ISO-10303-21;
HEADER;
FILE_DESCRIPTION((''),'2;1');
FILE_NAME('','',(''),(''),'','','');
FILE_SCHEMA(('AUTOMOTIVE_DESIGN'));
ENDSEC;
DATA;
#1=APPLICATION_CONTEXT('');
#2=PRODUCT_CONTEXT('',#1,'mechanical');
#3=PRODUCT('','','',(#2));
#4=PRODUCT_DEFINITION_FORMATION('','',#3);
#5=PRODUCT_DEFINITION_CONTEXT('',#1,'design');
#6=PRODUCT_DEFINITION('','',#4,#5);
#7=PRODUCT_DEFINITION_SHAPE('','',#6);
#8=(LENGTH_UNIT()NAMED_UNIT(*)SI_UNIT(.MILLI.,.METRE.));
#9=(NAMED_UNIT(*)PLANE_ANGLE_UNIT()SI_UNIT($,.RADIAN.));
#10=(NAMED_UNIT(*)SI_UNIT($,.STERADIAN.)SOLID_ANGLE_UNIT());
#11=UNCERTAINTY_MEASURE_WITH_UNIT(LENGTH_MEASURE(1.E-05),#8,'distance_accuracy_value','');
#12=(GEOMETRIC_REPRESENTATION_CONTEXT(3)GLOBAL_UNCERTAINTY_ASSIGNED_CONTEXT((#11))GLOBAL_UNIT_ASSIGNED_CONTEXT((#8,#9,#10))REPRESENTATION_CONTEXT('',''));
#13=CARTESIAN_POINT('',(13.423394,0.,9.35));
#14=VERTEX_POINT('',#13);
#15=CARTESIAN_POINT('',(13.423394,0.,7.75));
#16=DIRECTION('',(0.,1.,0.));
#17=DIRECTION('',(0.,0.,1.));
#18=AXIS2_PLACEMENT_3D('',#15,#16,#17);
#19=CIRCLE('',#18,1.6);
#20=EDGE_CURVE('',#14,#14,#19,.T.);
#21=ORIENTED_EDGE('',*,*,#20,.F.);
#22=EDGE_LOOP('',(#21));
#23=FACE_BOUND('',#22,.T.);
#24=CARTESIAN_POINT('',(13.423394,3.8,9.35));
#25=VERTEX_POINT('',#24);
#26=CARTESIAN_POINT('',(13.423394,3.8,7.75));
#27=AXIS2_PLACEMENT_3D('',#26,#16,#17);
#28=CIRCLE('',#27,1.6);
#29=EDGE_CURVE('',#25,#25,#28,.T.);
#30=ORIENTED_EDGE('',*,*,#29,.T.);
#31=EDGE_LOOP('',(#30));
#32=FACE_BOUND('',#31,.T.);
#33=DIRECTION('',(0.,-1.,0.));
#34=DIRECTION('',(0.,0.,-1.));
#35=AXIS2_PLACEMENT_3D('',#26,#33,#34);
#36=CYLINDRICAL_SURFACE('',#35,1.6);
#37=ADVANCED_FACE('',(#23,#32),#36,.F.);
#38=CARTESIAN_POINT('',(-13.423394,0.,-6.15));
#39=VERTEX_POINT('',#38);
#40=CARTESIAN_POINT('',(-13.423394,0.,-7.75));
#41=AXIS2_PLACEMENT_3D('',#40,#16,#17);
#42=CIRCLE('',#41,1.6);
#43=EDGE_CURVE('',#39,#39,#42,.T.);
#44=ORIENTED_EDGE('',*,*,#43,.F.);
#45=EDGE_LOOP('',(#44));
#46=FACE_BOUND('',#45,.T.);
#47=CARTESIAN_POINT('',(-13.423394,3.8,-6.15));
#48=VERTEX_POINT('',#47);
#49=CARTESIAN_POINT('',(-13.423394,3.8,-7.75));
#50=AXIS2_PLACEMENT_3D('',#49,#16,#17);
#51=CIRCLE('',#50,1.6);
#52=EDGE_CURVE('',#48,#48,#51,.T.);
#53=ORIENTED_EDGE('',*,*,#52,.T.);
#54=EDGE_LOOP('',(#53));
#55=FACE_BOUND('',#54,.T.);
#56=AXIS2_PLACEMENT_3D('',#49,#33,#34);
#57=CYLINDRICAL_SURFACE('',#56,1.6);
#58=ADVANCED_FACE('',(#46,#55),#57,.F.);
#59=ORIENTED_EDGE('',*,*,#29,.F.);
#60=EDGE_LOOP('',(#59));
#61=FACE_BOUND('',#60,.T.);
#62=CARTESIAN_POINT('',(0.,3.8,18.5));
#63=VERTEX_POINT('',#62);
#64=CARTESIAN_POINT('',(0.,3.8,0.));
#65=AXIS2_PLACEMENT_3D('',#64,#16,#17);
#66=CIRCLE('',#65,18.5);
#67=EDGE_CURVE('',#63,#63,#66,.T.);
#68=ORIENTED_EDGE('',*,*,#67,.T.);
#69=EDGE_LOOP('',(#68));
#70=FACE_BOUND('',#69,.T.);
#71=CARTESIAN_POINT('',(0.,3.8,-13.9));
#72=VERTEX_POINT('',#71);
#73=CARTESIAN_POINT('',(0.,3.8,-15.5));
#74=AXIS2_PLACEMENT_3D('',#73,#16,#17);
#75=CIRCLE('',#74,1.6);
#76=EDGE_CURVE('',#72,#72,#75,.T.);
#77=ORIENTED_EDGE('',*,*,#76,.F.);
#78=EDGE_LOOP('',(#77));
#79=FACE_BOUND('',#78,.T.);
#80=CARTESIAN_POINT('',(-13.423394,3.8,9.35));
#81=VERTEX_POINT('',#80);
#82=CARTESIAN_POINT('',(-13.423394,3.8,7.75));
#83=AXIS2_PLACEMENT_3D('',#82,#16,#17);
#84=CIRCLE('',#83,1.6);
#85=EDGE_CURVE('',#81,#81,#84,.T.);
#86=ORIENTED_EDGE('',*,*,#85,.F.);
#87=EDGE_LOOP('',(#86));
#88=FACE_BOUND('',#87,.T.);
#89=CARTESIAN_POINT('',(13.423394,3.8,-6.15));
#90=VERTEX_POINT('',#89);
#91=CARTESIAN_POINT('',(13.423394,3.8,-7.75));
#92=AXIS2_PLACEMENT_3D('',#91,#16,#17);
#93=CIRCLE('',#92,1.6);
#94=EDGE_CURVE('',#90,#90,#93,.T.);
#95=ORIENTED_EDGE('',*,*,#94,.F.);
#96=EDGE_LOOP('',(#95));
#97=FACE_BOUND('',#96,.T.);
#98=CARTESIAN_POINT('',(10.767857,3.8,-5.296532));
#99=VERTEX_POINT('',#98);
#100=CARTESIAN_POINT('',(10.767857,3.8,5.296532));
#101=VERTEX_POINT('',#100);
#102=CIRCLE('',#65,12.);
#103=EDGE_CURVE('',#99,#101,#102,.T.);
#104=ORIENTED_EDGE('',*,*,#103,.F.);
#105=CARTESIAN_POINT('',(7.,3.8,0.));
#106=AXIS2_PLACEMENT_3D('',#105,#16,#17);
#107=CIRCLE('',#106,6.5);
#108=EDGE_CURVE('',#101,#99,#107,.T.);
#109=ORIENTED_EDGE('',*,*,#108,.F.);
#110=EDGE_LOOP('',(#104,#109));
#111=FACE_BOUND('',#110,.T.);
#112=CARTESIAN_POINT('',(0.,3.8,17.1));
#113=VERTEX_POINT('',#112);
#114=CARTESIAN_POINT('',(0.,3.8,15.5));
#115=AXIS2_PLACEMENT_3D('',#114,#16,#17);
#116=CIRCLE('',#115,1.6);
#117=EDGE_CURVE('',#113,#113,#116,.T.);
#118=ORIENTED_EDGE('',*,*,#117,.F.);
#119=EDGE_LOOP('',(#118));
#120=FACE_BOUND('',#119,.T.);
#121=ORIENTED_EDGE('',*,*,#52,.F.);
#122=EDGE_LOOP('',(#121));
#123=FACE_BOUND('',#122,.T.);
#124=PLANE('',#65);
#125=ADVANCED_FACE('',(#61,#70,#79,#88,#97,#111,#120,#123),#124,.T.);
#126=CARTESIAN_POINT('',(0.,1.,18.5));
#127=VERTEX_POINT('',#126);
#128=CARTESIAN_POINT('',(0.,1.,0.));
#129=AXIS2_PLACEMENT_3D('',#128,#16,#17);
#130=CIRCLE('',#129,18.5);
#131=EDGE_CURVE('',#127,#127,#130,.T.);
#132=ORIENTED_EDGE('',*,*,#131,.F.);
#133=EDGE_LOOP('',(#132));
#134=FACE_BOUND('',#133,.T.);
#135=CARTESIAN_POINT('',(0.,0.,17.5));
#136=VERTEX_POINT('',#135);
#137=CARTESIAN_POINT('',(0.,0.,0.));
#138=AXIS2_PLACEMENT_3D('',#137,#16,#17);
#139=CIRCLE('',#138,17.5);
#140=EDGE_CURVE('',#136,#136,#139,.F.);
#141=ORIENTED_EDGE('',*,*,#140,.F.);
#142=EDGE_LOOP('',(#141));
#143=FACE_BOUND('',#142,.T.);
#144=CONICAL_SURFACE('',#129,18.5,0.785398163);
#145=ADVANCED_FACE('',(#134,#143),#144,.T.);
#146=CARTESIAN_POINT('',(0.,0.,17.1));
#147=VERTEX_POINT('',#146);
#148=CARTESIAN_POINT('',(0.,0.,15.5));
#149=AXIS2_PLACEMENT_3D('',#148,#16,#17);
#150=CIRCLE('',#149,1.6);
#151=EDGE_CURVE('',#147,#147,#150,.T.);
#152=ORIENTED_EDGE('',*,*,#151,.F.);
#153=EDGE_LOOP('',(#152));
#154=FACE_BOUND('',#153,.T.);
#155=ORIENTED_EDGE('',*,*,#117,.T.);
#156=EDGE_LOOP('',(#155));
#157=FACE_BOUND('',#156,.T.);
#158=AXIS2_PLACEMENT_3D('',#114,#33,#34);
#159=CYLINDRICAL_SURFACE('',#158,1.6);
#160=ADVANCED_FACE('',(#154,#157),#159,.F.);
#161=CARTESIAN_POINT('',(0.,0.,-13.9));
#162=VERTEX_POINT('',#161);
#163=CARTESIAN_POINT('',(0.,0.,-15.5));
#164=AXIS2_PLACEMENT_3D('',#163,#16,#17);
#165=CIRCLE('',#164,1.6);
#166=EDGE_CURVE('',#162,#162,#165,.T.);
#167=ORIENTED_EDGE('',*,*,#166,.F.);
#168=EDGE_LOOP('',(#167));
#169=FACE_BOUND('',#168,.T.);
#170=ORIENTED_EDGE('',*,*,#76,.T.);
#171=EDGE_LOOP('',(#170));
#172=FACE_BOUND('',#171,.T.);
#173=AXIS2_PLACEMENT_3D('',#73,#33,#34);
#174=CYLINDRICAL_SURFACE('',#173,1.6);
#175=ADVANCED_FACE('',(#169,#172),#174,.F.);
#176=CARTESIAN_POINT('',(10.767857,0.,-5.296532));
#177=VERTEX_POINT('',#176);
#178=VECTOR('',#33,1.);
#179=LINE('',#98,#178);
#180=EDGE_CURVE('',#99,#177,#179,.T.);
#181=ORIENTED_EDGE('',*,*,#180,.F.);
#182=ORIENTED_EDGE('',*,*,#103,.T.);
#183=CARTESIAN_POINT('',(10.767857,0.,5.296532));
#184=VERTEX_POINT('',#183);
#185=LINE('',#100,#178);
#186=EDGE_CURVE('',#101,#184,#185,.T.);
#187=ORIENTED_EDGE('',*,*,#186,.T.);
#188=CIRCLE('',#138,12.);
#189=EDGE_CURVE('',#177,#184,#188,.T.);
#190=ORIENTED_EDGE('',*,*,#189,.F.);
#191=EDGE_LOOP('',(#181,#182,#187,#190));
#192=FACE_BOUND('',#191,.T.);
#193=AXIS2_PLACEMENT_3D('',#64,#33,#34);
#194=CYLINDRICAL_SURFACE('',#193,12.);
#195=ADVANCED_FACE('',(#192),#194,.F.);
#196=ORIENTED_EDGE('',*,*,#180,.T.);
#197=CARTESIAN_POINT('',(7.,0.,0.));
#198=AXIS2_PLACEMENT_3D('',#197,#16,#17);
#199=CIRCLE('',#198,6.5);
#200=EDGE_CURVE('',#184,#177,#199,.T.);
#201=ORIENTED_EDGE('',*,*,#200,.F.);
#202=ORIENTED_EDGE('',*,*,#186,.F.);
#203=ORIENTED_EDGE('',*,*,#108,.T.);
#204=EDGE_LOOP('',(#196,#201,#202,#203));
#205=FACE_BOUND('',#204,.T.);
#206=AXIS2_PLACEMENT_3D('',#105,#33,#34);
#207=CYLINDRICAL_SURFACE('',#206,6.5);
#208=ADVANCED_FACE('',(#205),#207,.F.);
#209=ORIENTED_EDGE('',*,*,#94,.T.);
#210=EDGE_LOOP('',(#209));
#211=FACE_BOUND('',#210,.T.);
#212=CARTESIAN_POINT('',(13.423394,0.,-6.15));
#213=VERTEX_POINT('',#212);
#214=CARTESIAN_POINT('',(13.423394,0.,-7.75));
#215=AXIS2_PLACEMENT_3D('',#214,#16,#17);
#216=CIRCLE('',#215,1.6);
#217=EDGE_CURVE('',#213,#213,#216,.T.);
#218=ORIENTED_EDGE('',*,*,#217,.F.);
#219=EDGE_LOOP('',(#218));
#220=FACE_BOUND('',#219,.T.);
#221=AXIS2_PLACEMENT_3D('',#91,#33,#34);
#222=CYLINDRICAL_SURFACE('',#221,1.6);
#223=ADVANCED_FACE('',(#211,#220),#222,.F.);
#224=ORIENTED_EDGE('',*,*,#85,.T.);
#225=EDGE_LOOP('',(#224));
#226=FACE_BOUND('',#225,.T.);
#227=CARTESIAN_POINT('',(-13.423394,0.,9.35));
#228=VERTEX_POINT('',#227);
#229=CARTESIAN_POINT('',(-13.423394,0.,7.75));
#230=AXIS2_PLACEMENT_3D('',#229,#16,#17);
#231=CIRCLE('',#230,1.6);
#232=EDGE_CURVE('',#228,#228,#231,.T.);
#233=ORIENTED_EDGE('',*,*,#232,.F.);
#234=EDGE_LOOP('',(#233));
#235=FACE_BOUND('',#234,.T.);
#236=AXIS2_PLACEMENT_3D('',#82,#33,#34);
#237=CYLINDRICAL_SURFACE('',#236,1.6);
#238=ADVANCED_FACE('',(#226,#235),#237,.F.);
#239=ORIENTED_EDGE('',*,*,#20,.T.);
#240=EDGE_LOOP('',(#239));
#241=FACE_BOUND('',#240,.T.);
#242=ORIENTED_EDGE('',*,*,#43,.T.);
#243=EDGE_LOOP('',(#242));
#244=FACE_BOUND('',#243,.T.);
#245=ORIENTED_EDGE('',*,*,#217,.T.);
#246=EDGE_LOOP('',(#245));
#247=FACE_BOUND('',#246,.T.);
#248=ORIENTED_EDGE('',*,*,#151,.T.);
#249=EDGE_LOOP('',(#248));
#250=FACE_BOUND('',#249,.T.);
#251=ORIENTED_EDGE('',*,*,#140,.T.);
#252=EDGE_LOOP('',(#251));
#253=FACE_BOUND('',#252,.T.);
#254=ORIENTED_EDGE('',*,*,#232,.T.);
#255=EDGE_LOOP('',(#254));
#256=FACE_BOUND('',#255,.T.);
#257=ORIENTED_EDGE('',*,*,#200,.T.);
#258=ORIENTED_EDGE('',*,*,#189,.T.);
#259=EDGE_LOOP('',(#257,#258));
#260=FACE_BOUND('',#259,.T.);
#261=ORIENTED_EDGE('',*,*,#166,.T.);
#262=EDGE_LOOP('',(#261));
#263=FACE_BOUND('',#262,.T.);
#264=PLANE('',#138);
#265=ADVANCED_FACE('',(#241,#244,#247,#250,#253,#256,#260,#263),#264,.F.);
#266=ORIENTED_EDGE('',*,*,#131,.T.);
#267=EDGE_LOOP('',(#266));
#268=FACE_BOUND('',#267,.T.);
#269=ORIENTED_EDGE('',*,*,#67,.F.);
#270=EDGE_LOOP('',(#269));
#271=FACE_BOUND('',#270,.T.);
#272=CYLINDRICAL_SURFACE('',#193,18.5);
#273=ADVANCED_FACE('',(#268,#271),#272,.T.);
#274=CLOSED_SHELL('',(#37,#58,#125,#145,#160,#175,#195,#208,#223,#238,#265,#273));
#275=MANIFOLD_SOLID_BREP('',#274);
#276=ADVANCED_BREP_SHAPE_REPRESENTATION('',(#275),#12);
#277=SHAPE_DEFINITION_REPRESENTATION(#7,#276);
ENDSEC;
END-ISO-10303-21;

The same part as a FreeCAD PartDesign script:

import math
import FreeCAD as App
import Part
import Sketcher
Q = App.Units.Quantity


def edges_at(feature, points):
    """Names of the edges that pass closest to the given points."""
    edges = feature.Shape.Edges
    near = lambda p: min(range(len(edges)), key=lambda i: edges[i].distToShape(Part.Vertex(*p))[0])
    return sorted({f"Edge{near(p) + 1}" for p in points})

doc = App.newDocument("Part")
params = doc.addObject("Spreadsheet::Sheet", "Params")
for row, (alias, value) in enumerate([
    ("sketch1_diameter", "37 mm"),
    ("sketch1_radius", "12 mm"),
    ("sketch1_diameter2", "3.2 mm"),
    ("sketch1_radius2", "6.5 mm"),
    ("pad1_length", "3.8 mm"),
    ("chamfer_size", "1 mm"),
], start=1):
    params.set(f"A{row}", alias)
    params.set(f"B{row}", "=" + value)
    params.setAlias(f"B{row}", alias)

body = doc.addObject("PartDesign::Body", "Body")

# Sketch on XZ plane
sketch1 = doc.addObject("Sketcher::SketchObject", "Sketch")
body.addObject(sketch1)
sketch1.AttachmentSupport = (doc.XZ_Plane, [""])
sketch1.MapMode = "FlatFace"
sketch1.addGeometry(Part.Circle(App.Vector(0, 0, 0), App.Vector(0, 0, 1), 18.5), False)
sketch1.addGeometry(Part.Circle(App.Vector(-13.423394, 7.75, 0), App.Vector(0, 0, 1), 1.6), False)
sketch1.addGeometry(Part.Circle(App.Vector(0, 15.5, 0), App.Vector(0, 0, 1), 1.6), False)
sketch1.addGeometry(Part.Circle(App.Vector(13.423394, 7.75, 0), App.Vector(0, 0, 1), 1.6), False)
sketch1.addGeometry(Part.Circle(App.Vector(-13.423394, -7.75, 0), App.Vector(0, 0, 1), 1.6), False)
sketch1.addGeometry(Part.ArcOfCircle(Part.Circle(App.Vector(7, 0, 0), App.Vector(0, 0, 1), 6.5), math.radians(-54.572641), math.radians(54.572641)), False)
sketch1.addGeometry(Part.ArcOfCircle(Part.Circle(App.Vector(0, 0, 0), App.Vector(0, 0, 1), 12), math.radians(26.191815), math.radians(333.808185)), False)
sketch1.addGeometry(Part.Circle(App.Vector(13.423394, -7.75, 0), App.Vector(0, 0, 1), 1.6), False)
sketch1.addGeometry(Part.Circle(App.Vector(0, -15.5, 0), App.Vector(0, 0, 1), 1.6), False)
sketch1.addConstraint(Sketcher.Constraint("Coincident", 5, 1, 6, 2))
sketch1.addConstraint(Sketcher.Constraint("Coincident", 6, 1, 5, 2))
sketch1.addConstraint(Sketcher.Constraint("Coincident", 0, 3, -1, 1))
sketch1.addConstraint(Sketcher.Constraint("Coincident", 6, 3, -1, 1))
sketch1.addConstraint(Sketcher.Constraint("Equal", 1, 2))
sketch1.addConstraint(Sketcher.Constraint("Equal", 2, 3))
sketch1.addConstraint(Sketcher.Constraint("Equal", 3, 4))
sketch1.addConstraint(Sketcher.Constraint("Equal", 4, 7))
sketch1.addConstraint(Sketcher.Constraint("Equal", 7, 8))
sketch1.addConstraint(Sketcher.Constraint("Symmetric", 3, 3, 4, 3, -1, 1))
sketch1.addConstraint(Sketcher.Constraint("Symmetric", 1, 3, 7, 3, -1, 1))
sketch1.addConstraint(Sketcher.Constraint("Symmetric", 2, 3, 8, 3, -1, 1))
sketch1.addConstraint(Sketcher.Constraint("Symmetric", 1, 3, 3, 3, -2))
sketch1.addConstraint(Sketcher.Constraint("PointOnObject", 2, 3, -2))
sketch1.addConstraint(Sketcher.Constraint("PointOnObject", 5, 3, -1))
sketch1.addConstraint(Sketcher.Constraint("Diameter", 0, Q("37 mm")))
sketch1.addConstraint(Sketcher.Constraint("Radius", 6, Q("12 mm")))
sketch1.addConstraint(Sketcher.Constraint("Diameter", 1, Q("3.2 mm")))
sketch1.addConstraint(Sketcher.Constraint("Radius", 5, Q("6.5 mm")))
sketch1.addConstraint(Sketcher.Constraint("DistanceX", -1, 1, 5, 3, Q("7 mm")))
sketch1.addConstraint(Sketcher.Constraint("DistanceY", -1, 1, 2, 3, Q("15.5 mm")))
sketch1.addConstraint(Sketcher.Constraint("DistanceY", 4, 3, 1, 3, Q("15.5 mm")))
sketch1.addConstraint(Sketcher.Constraint("DistanceX", 1, 3, -1, 1, Q("13.423394 mm")))
sketch1.setExpression("Constraints[15]", "Params.sketch1_diameter")
sketch1.setExpression("Constraints[16]", "Params.sketch1_radius")
sketch1.setExpression("Constraints[17]", "Params.sketch1_diameter2")
sketch1.setExpression("Constraints[18]", "Params.sketch1_radius2")
pad1 = doc.addObject("PartDesign::Pad", "Pad")
body.addObject(pad1)
pad1.Profile = sketch1
pad1.setExpression("Length", "Params.pad1_length")
pad1.Reversed = True
doc.recompute()

chamfer = doc.addObject("PartDesign::Chamfer", "Chamfer")
body.addObject(chamfer)
chamfer.Base = (pad1, edges_at(pad1, [(-18.5, 0, 0)]))
chamfer.setExpression("Size", "Params.chamfer_size")

doc.recompute()
